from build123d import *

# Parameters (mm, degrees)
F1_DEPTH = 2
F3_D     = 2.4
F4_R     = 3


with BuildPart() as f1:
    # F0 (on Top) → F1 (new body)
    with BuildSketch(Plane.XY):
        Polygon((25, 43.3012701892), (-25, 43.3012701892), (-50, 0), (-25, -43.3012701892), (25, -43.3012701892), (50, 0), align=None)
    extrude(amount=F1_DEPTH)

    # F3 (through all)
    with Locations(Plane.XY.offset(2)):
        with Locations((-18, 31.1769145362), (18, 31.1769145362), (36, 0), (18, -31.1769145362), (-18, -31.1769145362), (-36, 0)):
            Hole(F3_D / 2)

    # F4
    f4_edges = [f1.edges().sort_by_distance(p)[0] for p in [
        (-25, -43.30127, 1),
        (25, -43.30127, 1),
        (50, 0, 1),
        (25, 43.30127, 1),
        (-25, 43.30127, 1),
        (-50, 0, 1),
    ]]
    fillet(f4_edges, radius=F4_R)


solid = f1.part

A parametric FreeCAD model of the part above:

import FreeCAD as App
import Part
import Sketcher

V = App.Vector
Q = App.Units.Quantity


def edges_at(feature, points):
    """Names of the edges that pass closest to the given points."""
    edges = feature.Shape.Edges
    near = lambda p: min(range(len(edges)), key=lambda i: edges[i].distToShape(Part.Vertex(*p))[0])
    return sorted({f"Edge{near(p) + 1}" for p in points})

doc = App.newDocument("Part")
body = doc.addObject("PartDesign::Body", "Body")

sketch1 = body.newObject("Sketcher::SketchObject", "Sketch")
sketch1.AttachmentSupport = (doc.getObject("XY_Plane"), [""])
sketch1.MapMode = "FlatFace"
sketch1.addGeometry(Part.LineSegment(V(25, 43, 0), V(-25, 43, 0)), False)
sketch1.addGeometry(Part.LineSegment(V(-25, 43, 0), V(-50, 0, 0)), False)
sketch1.addGeometry(Part.LineSegment(V(-50, 0, 0), V(-25, -43, 0)), False)
sketch1.addGeometry(Part.LineSegment(V(-25, -43, 0), V(25, -43, 0)), False)
sketch1.addGeometry(Part.LineSegment(V(25, -43, 0), V(50, 0, 0)), False)
sketch1.addGeometry(Part.LineSegment(V(50, 0, 0), V(25, 43, 0)), False)
sketch1.addConstraint(Sketcher.Constraint("Coincident", 0, 2, 1, 1))
sketch1.addConstraint(Sketcher.Constraint("Coincident", 1, 2, 2, 1))
sketch1.addConstraint(Sketcher.Constraint("Coincident", 2, 2, 3, 1))
sketch1.addConstraint(Sketcher.Constraint("Coincident", 3, 2, 4, 1))
sketch1.addConstraint(Sketcher.Constraint("Coincident", 4, 2, 5, 1))
sketch1.addConstraint(Sketcher.Constraint("Coincident", 5, 2, 0, 1))
sketch1.addConstraint(Sketcher.Constraint("Horizontal", 0))
sketch1.addConstraint(Sketcher.Constraint("Horizontal", 3))
sketch1.addConstraint(Sketcher.Constraint("Symmetric", 0, 2, 3, 2, -1, 1))
sketch1.addConstraint(Sketcher.Constraint("Symmetric", 1, 2, 4, 2, -1, 1))
sketch1.addConstraint(Sketcher.Constraint("PointOnObject", 1, 2, -1))
sketch1.addConstraint(Sketcher.Constraint("Parallel", 2, 5))
sketch1.addConstraint(Sketcher.Constraint("Vertical", 0, 2, 2, 2))
sketch1.addConstraint(Sketcher.Constraint("DistanceX", 0, 2, 0, 1, Q("50 mm")))
sketch1.addConstraint(Sketcher.Constraint("Angle", 1, Q("-120 deg")))
sketch1.addConstraint(Sketcher.Constraint("Distance", 1, Q("50 mm")))
pad1 = body.newObject("PartDesign::Pad", "Pad")
pad1.Profile = sketch1
pad1.Length = 2

sketch2 = body.newObject("Sketcher::SketchObject", "Sketch001")
sketch2.AttachmentSupport = (doc.getObject("XY_Plane"), [""])
sketch2.MapMode = "FlatFace"
sketch2.AttachmentOffset = App.Placement(V(0, 0, 2), App.Rotation())
sketch2.addGeometry(Part.Circle(V(-18, 31.2, 0), V(0, 0, 1), 1.2), False)
sketch2.addGeometry(Part.Circle(V(18, 31.2, 0), V(0, 0, 1), 1.2), False)
sketch2.addGeometry(Part.Circle(V(36, 0, 0), V(0, 0, 1), 1.2), False)
sketch2.addGeometry(Part.Circle(V(18, -31.2, 0), V(0, 0, 1), 1.2), False)
sketch2.addGeometry(Part.Circle(V(-18, -31.2, 0), V(0, 0, 1), 1.2), False)
sketch2.addGeometry(Part.Circle(V(-36, 0, 0), V(0, 0, 1), 1.2), False)
sketch2.addConstraint(Sketcher.Constraint("Equal", 0, 1))
sketch2.addConstraint(Sketcher.Constraint("Equal", 1, 2))
sketch2.addConstraint(Sketcher.Constraint("Equal", 2, 3))
sketch2.addConstraint(Sketcher.Constraint("Equal", 3, 4))
sketch2.addConstraint(Sketcher.Constraint("Equal", 4, 5))
sketch2.addConstraint(Sketcher.Constraint("Symmetric", 0, 3, 3, 3, -1, 1))
sketch2.addConstraint(Sketcher.Constraint("Symmetric", 1, 3, 4, 3, -1, 1))
sketch2.addConstraint(Sketcher.Constraint("Symmetric", 2, 3, 5, 3, -1, 1))
sketch2.addConstraint(Sketcher.Constraint("Symmetric", 0, 3, 1, 3, -2))
sketch2.addConstraint(Sketcher.Constraint("PointOnObject", 2, 3, -1))
sketch2.addConstraint(Sketcher.Constraint("Diameter", 0, Q("2.4 mm")))
sketch2.addConstraint(Sketcher.Constraint("DistanceX", 0, 3, -1, 1, Q("18 mm")))
sketch2.addConstraint(Sketcher.Constraint("DistanceX", -1, 1, 2, 3, Q("36 mm")))
sketch2.addConstraint(Sketcher.Constraint("DistanceY", 3, 3, 1, 3, Q("62.353829 mm")))
doc.recompute()
hole = body.newObject("PartDesign::Hole", "Hole")
hole.Profile = sketch2
hole.ThreadType = "None"
hole.Diameter = 2.4
hole.DepthType = "ThroughAll"
doc.recompute()

fillet = body.newObject("PartDesign::Fillet", "Fillet")
fillet.Base = (hole, edges_at(hole, [
    (-25, -43.301, 1),
    (25, -43.301, 1),
    (50, 0, 1),
    (25, 43.301, 1),
    (-25, 43.301, 1),
    (-50, 0, 1),
]))
fillet.Radius = 3

doc.recompute()
